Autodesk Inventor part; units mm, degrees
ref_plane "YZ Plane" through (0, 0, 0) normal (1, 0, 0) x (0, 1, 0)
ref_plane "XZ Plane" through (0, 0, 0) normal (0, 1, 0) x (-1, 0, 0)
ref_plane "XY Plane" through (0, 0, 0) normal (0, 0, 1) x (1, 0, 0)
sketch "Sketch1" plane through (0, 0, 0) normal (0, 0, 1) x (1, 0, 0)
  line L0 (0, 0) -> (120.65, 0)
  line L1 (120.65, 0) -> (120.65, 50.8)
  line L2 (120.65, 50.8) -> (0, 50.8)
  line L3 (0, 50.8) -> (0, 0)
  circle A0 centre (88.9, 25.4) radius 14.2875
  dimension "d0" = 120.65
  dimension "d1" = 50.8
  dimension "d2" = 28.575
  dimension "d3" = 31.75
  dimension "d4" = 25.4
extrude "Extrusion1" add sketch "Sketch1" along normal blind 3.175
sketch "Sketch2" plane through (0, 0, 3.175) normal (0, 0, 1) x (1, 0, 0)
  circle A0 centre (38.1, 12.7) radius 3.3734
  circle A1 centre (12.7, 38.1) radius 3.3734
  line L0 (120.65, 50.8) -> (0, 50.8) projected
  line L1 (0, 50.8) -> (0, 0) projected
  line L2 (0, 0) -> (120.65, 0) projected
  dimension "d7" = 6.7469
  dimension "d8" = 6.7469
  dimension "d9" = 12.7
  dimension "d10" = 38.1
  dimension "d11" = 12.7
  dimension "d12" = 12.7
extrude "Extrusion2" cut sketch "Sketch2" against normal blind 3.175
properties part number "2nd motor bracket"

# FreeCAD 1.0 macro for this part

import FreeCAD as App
import Part
import Sketcher

V = App.Vector
Q = App.Units.Quantity

doc = App.newDocument("Part")
body = doc.addObject("PartDesign::Body", "Body")

# Sketch on XY plane
sketch1 = doc.addObject("Sketcher::SketchObject", "Sketch")
body.addObject(sketch1)
sketch1.AttachmentSupport = (doc.XY_Plane, [""])
sketch1.MapMode = "FlatFace"
sketch1.addGeometry([
    Part.LineSegment(V(0, 51, 0), V(0, 0, 0)),  # 0
    Part.LineSegment(V(0, 0, 0), V(121, 0, 0)),  # 1
    Part.LineSegment(V(121, 0, 0), V(121, 51, 0)),  # 2
    Part.LineSegment(V(121, 51, 0), V(0, 51, 0)),  # 3
    Part.Circle(V(89, 25, 0), V(0, 0, 1), 14),  # 4
], False)
sketch1.addConstraint([
    Sketcher.Constraint("Coincident", 0, 2, 1, 1),
    Sketcher.Constraint("Coincident", 1, 2, 2, 1),
    Sketcher.Constraint("Coincident", 2, 2, 3, 1),
    Sketcher.Constraint("Coincident", 3, 2, 0, 1),
    Sketcher.Constraint("Vertical", 0),
    Sketcher.Constraint("Horizontal", 1),
    Sketcher.Constraint("Vertical", 2),
    Sketcher.Constraint("Horizontal", 3),
    Sketcher.Constraint("Coincident", 0, 2, -1, 1),
    Sketcher.Constraint("DistanceY", 0, 2, 0, 1, Q("2 in")),
    Sketcher.Constraint("Diameter", 4, Q("1.125 in")),
    Sketcher.Constraint("DistanceY", -1, 1, 4, 3, Q("1 in")),
    Sketcher.Constraint("DistanceX", 1, 1, 1, 2, Q("4.75 in")),
    Sketcher.Constraint("DistanceX", 4, 3, 1, 2, Q("1.25 in")),
])
pad1 = doc.addObject("PartDesign::Pad", "Pad")
body.addObject(pad1)
pad1.Profile = sketch1
pad1.Length = Q("0.125 in")

# Sketch on XY plane
sketch2 = doc.addObject("Sketcher::SketchObject", "Sketch001")
body.addObject(sketch2)
sketch2.AttachmentSupport = (doc.XY_Plane, [""])
sketch2.MapMode = "FlatFace"
sketch2.AttachmentOffset = App.Placement(V(0, 0, 0.125 * 25.4), App.Rotation())
sketch2.addGeometry([
    Part.Circle(V(38.1, 12.7, 0), V(0, 0, 1), 3.4),
    Part.Circle(V(12.7, 38.1, 0), V(0, 0, 1), 3.4),
], False)
sketch2.addConstraint([
    Sketcher.Constraint("Equal", 0, 1),
    Sketcher.Constraint("Diameter", 0, Q("0.265622 in")),
    Sketcher.Constraint("DistanceX", -1, 1, 0, 3, Q("1.5 in")),
    Sketcher.Constraint("DistanceY", -1, 1, 0, 3, Q("0.5 in")),
    Sketcher.Constraint("DistanceX", -1, 1, 1, 3, Q("0.5 in")),
    Sketcher.Constraint("DistanceY", -1, 1, 1, 3, Q("1.5 in")),
])
pocket1 = doc.addObject("PartDesign::Pocket", "Pocket")
body.addObject(pocket1)
pocket1.Profile = sketch2
pocket1.Length = Q("0.125 in")

doc.recompute()
